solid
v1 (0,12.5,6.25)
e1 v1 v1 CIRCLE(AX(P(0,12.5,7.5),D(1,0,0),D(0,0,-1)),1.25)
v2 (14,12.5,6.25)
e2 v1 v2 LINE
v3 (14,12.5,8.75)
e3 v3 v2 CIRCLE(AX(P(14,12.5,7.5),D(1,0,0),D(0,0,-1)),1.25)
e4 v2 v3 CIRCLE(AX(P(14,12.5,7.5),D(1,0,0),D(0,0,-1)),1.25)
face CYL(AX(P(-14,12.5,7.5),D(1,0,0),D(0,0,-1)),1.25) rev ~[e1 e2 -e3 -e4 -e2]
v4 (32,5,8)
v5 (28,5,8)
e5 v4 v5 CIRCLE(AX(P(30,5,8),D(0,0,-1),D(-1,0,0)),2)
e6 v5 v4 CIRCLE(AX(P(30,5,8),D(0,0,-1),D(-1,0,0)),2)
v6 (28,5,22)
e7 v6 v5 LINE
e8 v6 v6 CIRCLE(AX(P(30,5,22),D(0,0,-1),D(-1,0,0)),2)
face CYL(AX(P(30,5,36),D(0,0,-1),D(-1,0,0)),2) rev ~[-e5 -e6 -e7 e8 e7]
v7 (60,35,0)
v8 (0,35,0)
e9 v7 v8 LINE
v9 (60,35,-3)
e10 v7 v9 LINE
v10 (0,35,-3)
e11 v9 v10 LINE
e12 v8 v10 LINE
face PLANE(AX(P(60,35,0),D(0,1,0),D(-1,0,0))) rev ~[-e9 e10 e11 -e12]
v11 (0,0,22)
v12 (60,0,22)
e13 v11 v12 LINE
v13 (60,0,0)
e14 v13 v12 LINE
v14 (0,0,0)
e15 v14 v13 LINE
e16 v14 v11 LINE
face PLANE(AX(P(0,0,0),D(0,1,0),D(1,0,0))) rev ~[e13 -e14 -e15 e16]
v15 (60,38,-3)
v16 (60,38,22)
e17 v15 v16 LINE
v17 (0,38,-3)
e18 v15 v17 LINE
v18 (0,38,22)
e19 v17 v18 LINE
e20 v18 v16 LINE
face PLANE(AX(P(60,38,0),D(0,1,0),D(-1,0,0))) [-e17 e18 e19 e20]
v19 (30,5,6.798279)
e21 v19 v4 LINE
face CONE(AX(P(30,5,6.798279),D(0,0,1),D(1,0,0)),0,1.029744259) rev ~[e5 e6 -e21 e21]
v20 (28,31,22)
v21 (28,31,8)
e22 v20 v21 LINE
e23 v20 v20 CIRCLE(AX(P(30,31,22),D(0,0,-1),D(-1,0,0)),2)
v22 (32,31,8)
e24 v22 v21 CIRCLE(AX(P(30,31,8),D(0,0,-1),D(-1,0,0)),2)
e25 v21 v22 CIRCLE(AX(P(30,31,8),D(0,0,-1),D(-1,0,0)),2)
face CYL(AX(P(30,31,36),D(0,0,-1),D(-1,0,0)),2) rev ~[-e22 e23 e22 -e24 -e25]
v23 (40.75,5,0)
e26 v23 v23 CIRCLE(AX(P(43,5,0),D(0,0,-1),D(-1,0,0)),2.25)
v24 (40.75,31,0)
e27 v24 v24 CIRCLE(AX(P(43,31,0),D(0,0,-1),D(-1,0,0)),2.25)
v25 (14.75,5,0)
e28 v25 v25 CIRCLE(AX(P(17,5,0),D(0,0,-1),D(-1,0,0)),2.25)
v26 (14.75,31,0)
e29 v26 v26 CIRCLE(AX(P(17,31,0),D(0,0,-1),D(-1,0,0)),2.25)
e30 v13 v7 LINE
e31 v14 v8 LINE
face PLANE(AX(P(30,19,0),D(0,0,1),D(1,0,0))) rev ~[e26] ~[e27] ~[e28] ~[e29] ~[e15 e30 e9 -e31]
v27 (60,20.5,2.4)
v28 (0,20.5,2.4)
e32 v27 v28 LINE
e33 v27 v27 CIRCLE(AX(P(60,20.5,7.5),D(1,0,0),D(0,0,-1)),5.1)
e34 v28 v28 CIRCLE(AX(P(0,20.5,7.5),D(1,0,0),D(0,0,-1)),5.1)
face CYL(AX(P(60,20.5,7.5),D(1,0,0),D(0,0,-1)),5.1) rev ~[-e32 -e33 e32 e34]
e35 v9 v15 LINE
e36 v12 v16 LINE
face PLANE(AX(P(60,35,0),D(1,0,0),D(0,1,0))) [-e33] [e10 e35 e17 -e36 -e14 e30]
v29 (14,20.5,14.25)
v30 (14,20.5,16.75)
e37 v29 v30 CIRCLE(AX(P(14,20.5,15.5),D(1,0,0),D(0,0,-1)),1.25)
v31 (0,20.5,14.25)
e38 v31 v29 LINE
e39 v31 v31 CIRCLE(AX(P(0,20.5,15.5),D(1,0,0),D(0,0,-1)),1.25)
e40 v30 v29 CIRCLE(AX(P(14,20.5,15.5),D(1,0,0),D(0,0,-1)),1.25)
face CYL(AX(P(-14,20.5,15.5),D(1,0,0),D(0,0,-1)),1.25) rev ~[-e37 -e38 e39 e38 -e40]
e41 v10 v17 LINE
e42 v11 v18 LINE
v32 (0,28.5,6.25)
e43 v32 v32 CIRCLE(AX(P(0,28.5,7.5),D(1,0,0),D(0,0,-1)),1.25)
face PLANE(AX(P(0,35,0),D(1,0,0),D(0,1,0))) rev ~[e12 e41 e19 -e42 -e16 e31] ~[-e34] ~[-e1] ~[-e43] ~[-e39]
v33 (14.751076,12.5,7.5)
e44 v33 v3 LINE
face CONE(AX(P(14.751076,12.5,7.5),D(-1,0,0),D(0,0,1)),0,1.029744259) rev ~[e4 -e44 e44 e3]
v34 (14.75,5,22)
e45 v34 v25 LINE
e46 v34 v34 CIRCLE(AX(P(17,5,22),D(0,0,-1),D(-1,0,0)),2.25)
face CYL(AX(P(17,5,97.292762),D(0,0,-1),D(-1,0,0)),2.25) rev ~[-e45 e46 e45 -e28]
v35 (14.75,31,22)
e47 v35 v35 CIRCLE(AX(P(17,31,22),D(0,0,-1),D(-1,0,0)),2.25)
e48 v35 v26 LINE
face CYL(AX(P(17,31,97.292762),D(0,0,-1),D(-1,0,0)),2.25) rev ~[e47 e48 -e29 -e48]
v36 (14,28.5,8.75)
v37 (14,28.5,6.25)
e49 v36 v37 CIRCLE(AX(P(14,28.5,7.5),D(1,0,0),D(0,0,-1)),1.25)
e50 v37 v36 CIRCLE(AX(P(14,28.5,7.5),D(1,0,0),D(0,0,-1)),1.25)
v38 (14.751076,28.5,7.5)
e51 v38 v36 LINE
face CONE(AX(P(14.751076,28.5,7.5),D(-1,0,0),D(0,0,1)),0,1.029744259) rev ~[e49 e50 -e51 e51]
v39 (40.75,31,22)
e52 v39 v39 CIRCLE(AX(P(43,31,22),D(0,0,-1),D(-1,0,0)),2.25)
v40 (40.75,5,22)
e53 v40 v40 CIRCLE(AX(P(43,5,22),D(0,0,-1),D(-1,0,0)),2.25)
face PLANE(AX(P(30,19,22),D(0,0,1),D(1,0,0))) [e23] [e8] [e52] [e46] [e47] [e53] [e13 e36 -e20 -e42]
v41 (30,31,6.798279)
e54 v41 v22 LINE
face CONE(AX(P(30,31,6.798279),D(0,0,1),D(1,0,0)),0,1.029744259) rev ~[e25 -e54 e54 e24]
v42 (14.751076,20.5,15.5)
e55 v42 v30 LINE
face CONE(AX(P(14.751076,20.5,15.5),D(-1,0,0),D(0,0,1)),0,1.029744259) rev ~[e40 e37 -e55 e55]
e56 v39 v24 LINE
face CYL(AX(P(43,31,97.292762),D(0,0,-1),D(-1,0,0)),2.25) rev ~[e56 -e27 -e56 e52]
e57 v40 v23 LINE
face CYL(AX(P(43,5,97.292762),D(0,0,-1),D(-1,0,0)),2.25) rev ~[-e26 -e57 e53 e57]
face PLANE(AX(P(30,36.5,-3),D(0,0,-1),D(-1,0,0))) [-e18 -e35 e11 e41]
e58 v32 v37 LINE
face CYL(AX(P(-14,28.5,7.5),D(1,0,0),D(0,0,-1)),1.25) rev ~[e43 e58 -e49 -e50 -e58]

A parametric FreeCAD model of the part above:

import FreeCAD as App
import Part
import Sketcher

V = App.Vector


def add_polygon(sketch, points):
    """Adds a closed chain of lines whose ends are joined by coincident constraints."""
    first, n = sketch.GeometryCount, len(points)
    for a, b in zip(points, points[1:] + points[:1]):
        sketch.addGeometry(Part.LineSegment(App.Vector(*a, 0), App.Vector(*b, 0)), False)
    for i in range(n):
        sketch.addConstraint(Sketcher.Constraint("Coincident", first + i, 2, first + (i + 1) % n, 1))

doc = App.newDocument("Part")
body = doc.addObject("PartDesign::Body", "Body")

# Sketch on XY plane
sketch1 = body.newObject("Sketcher::SketchObject", "Sketch")
sketch1.AttachmentSupport = (doc.getObject("XY_Plane"), [""])
sketch1.MapMode = "FlatFace"
add_polygon(sketch1, [(0, 38), (0, 0), (60, 0), (60, 38)])  # lines 0-3
sketch1.addConstraint(Sketcher.Constraint("Vertical", 0))
sketch1.addConstraint(Sketcher.Constraint("Horizontal", 1))
sketch1.addConstraint(Sketcher.Constraint("Vertical", 2))
sketch1.addConstraint(Sketcher.Constraint("Horizontal", 3))
sketch1.addConstraint(Sketcher.Constraint("Coincident", 0, 2, -1, 1))
sketch1.addConstraint(Sketcher.Constraint("DistanceX", 1, 1, 1, 2, 60.0))
sketch1.addConstraint(Sketcher.Constraint("DistanceY", 0, 2, 0, 1, 38.0))
pad1 = body.newObject("PartDesign::Pad", "Pad")
pad1.Profile = sketch1
pad1.Length = 22

# Sketch on YZ plane
sketch2 = body.newObject("Sketcher::SketchObject", "Sketch001")
sketch2.AttachmentSupport = (doc.getObject("YZ_Plane"), [""])
sketch2.MapMode = "FlatFace"
sketch2.AttachmentOffset = App.Placement(V(0, 0, 60), App.Rotation())
sketch2.addGeometry(Part.Circle(V(20, 8, 0), V(0, 0, 1), 5), False)
sketch2.addConstraint(Sketcher.Constraint("Diameter", 0, 10.2))
sketch2.addConstraint(Sketcher.Constraint("DistanceX", -1, 1, 0, 3, 20.5))
sketch2.addConstraint(Sketcher.Constraint("DistanceY", -1, 1, 0, 3, 7.5))
pocket1 = body.newObject("PartDesign::Pocket", "Pocket")
pocket1.Profile = sketch2
pocket1.Type = "ThroughAll"

# Sketch on XY plane
sketch3 = body.newObject("Sketcher::SketchObject", "Sketch002")
sketch3.AttachmentSupport = (doc.getObject("XY_Plane"), [""])
sketch3.MapMode = "FlatFace"
add_polygon(sketch3, [(60, 38), (60, 35), (0, 35), (0, 38)])  # lines 0-3
sketch3.addConstraint(Sketcher.Constraint("Vertical", 0))
sketch3.addConstraint(Sketcher.Constraint("Horizontal", 1))
sketch3.addConstraint(Sketcher.Constraint("Vertical", 2))
sketch3.addConstraint(Sketcher.Constraint("Horizontal", 3))
sketch3.addConstraint(Sketcher.Constraint("PointOnObject", 1, 2, -2))
sketch3.addConstraint(Sketcher.Constraint("DistanceX", 1, 2, 1, 1, 60.0))
sketch3.addConstraint(Sketcher.Constraint("DistanceY", 0, 2, 0, 1, 3.0))
sketch3.addConstraint(Sketcher.Constraint("DistanceY", -1, 1, 0, 2, 35.0))
pad2 = body.newObject("PartDesign::Pad", "Pad001")
pad2.Profile = sketch3
pad2.Length = 3
pad2.Reversed = True

# Sketch on YZ plane
sketch4 = body.newObject("Sketcher::SketchObject", "Sketch003")
sketch4.AttachmentSupport = (doc.getObject("YZ_Plane"), [""])
sketch4.MapMode = "FlatFace"
sketch4.addGeometry(Part.Circle(V(20.5, 15.5, 0), V(0, 0, 1), 1.2), False)
sketch4.addGeometry(Part.Circle(V(12.5, 7.5, 0), V(0, 0, 1), 1.2), False)
sketch4.addGeometry(Part.Circle(V(28.5, 7.5, 0), V(0, 0, 1), 1.2), False)
sketch4.addConstraint(Sketcher.Constraint("Equal", 0, 1))
sketch4.addConstraint(Sketcher.Constraint("Equal", 1, 2))
sketch4.addConstraint(Sketcher.Constraint("Horizontal", 1, 3, 2, 3))
sketch4.addConstraint(Sketcher.Constraint("Diameter", 0, 2.5))
sketch4.addConstraint(Sketcher.Constraint("DistanceX", 1, 3, 0, 3, 8.0))
sketch4.addConstraint(Sketcher.Constraint("DistanceY", 1, 3, 0, 3, 8.0))
sketch4.addConstraint(Sketcher.Constraint("DistanceX", 0, 3, 2, 3, 8.0))
sketch4.addConstraint(Sketcher.Constraint("DistanceX", -1, 1, 0, 3, 20.5))
sketch4.addConstraint(Sketcher.Constraint("DistanceY", -1, 1, 0, 3, 15.5))
doc.recompute()
hole = body.newObject("PartDesign::Hole", "Hole")
hole.Profile = sketch4
hole.ThreadType = "None"
hole.Diameter = 2.5
hole.DepthType = "Dimension"
hole.Depth = 14
hole.DrillPoint = "Angled"
hole.DrillPointAngle = 118
hole.Reversed = True

# Sketch on XY plane
sketch5 = body.newObject("Sketcher::SketchObject", "Sketch004")
sketch5.AttachmentSupport = (doc.getObject("XY_Plane"), [""])
sketch5.MapMode = "FlatFace"
sketch5.AttachmentOffset = App.Placement(V(0, 0, 22), App.Rotation())
sketch5.addGeometry(Part.Circle(V(17, 5, 0), V(0, 0, 1), 2.2), False)
sketch5.addGeometry(Part.Circle(V(43, 31, 0), V(0, 0, 1), 2.2), False)
sketch5.addGeometry(Part.Circle(V(43, 5, 0), V(0, 0, 1), 2.2), False)
sketch5.addGeometry(Part.Circle(V(17, 31, 0), V(0, 0, 1), 2.2), False)
sketch5.addConstraint(Sketcher.Constraint("Equal", 0, 1))
sketch5.addConstraint(Sketcher.Constraint("Equal", 1, 2))
sketch5.addConstraint(Sketcher.Constraint("Equal", 2, 3))
sketch5.addConstraint(Sketcher.Constraint("Horizontal", 0, 3, 2, 3))
sketch5.addConstraint(Sketcher.Constraint("Horizontal", 1, 3, 3, 3))
sketch5.addConstraint(Sketcher.Constraint("Vertical", 1, 3, 2, 3))
sketch5.addConstraint(Sketcher.Constraint("Vertical", 0, 3, 3, 3))
sketch5.addConstraint(Sketcher.Constraint("Diameter", 0, 4.5))
sketch5.addConstraint(Sketcher.Constraint("DistanceX", -1, 1, 0, 3, 17.0))
sketch5.addConstraint(Sketcher.Constraint("DistanceY", -1, 1, 0, 3, 5.0))
sketch5.addConstraint(Sketcher.Constraint("DistanceX", -1, 1, 1, 3, 43.0))
sketch5.addConstraint(Sketcher.Constraint("DistanceY", -1, 1, 1, 3, 31.0))
doc.recompute()
hole2 = body.newObject("PartDesign::Hole", "Hole001")
hole2.Profile = sketch5
hole2.ThreadType = "None"
hole2.Diameter = 4.5
hole2.DepthType = "ThroughAll"

# Sketch on XY plane
sketch6 = body.newObject("Sketcher::SketchObject", "Sketch005")
sketch6.AttachmentSupport = (doc.getObject("XY_Plane"), [""])
sketch6.MapMode = "FlatFace"
sketch6.AttachmentOffset = App.Placement(V(0, 0, 22), App.Rotation())
sketch6.addGeometry(Part.Circle(V(30, 31, 0), V(0, 0, 1), 2), False)
sketch6.addGeometry(Part.Circle(V(30, 5, 0), V(0, 0, 1), 2), False)
sketch6.addConstraint(Sketcher.Constraint("Equal", 0, 1))
sketch6.addConstraint(Sketcher.Constraint("Vertical", 0, 3, 1, 3))
sketch6.addConstraint(Sketcher.Constraint("Diameter", 0, 4.0))
sketch6.addConstraint(Sketcher.Constraint("DistanceX", -1, 1, 0, 3, 30.0))
sketch6.addConstraint(Sketcher.Constraint("DistanceY", -1, 1, 0, 3, 31.0))
sketch6.addConstraint(Sketcher.Constraint("DistanceY", -1, 1, 1, 3, 5.0))
doc.recompute()
hole3 = body.newObject("PartDesign::Hole", "Hole002")
hole3.Profile = sketch6
hole3.ThreadType = "None"
hole3.Diameter = 4
hole3.DepthType = "Dimension"
hole3.Depth = 14
hole3.DrillPoint = "Angled"
hole3.DrillPointAngle = 118

doc.recompute()
